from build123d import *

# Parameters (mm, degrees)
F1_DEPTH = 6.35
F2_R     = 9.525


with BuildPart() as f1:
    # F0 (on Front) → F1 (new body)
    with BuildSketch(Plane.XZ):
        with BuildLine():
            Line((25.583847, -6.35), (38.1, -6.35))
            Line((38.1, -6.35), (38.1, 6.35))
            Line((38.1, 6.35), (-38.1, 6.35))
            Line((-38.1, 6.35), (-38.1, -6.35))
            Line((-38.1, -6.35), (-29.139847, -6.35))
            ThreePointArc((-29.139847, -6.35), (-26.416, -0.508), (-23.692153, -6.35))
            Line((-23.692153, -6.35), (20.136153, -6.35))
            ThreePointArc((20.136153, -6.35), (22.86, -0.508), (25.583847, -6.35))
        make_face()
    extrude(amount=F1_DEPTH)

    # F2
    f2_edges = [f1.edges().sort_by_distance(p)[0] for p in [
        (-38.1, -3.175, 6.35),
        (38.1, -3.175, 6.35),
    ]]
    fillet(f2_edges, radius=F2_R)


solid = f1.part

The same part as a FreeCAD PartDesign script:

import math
import FreeCAD as App
import Part
import Sketcher

V = App.Vector
Q = App.Units.Quantity


def edges_at(feature, points):
    """Names of the edges that pass closest to the given points."""
    edges = feature.Shape.Edges
    near = lambda p: min(range(len(edges)), key=lambda i: edges[i].distToShape(Part.Vertex(*p))[0])
    return sorted({f"Edge{near(p) + 1}" for p in points})

doc = App.newDocument("Part")
body = doc.addObject("PartDesign::Body", "Body")

sketch1 = body.newObject("Sketcher::SketchObject", "Sketch")
sketch1.AttachmentSupport = (doc.getObject("XZ_Plane"), [""])
sketch1.MapMode = "FlatFace"
sketch1.addGeometry([
    Part.LineSegment(V(25.6, -6.3, 0), V(38.1, -6.3, 0)),
    Part.LineSegment(V(38.1, -6.3, 0), V(38.1, 6.3, 0)),
    Part.LineSegment(V(38.1, 6.3, 0), V(-38.1, 6.3, 0)),
    Part.LineSegment(V(-38.1, 6.3, 0), V(-38.1, -6.3, 0)),
    Part.LineSegment(V(-38.1, -6.3, 0), V(-29.1, -6.3, 0)),
    Part.ArcOfCircle(Part.Circle(V(-26.4, -4.1, 0), V(0, 0, 1), 3.6), math.radians(-40), math.radians(220)),
    Part.LineSegment(V(-23.7, -6.3, 0), V(20.1, -6.3, 0)),
    Part.ArcOfCircle(Part.Circle(V(22.9, -4.1, 0), V(0, 0, 1), 3.6), math.radians(-40), math.radians(220)),
], False)
sketch1.addConstraint([
    Sketcher.Constraint("Coincident", 0, 2, 1, 1),
    Sketcher.Constraint("Coincident", 1, 2, 2, 1),
    Sketcher.Constraint("Coincident", 2, 2, 3, 1),
    Sketcher.Constraint("Coincident", 3, 2, 4, 1),
    Sketcher.Constraint("Coincident", 4, 2, 5, 2),
    Sketcher.Constraint("Coincident", 5, 1, 6, 1),
    Sketcher.Constraint("Coincident", 6, 2, 7, 2),
    Sketcher.Constraint("Coincident", 7, 1, 0, 1),
    Sketcher.Constraint("Horizontal", 0),
    Sketcher.Constraint("Vertical", 1),
    Sketcher.Constraint("Horizontal", 2),
    Sketcher.Constraint("Vertical", 3),
    Sketcher.Constraint("Horizontal", 4),
    Sketcher.Constraint("Horizontal", 6),
    Sketcher.Constraint("Equal", 5, 7),
    Sketcher.Constraint("Symmetric", 0, 2, 2, 2, -1, 1),
    Sketcher.Constraint("Horizontal", 5, 3, 7, 3),
    Sketcher.Constraint("Horizontal", 0, 2, 3, 2),
    Sketcher.Constraint("Horizontal", 4, 2, 5, 1),
    Sketcher.Constraint("DistanceX", 2, 2, 2, 1, Q("3 in")),
    Sketcher.Constraint("Radius", 5, Q("0.14 in")),
    Sketcher.Constraint("DistanceY", 1, 1, 1, 2, Q("0.5 in")),
    Sketcher.Constraint("DistanceX", -1, 1, 7, 3, Q("0.9 in")),
    Sketcher.Constraint("DistanceX", 5, 3, -1, 1, Q("1.04 in")),
    Sketcher.Constraint("DistanceY", 5, 3, -1, 1, Q("0.16 in")),
])
pad1 = body.newObject("PartDesign::Pad", "Pad")
pad1.Profile = sketch1
pad1.Length = Q("0.25 in")
doc.recompute()

fillet = body.newObject("PartDesign::Fillet", "Fillet")
fillet.Base = (pad1, edges_at(pad1, [(-38.1, -3.175, 6.35), (38.1, -3.175, 6.35)]))
fillet.Radius = Q("0.375 in")

doc.recompute()
